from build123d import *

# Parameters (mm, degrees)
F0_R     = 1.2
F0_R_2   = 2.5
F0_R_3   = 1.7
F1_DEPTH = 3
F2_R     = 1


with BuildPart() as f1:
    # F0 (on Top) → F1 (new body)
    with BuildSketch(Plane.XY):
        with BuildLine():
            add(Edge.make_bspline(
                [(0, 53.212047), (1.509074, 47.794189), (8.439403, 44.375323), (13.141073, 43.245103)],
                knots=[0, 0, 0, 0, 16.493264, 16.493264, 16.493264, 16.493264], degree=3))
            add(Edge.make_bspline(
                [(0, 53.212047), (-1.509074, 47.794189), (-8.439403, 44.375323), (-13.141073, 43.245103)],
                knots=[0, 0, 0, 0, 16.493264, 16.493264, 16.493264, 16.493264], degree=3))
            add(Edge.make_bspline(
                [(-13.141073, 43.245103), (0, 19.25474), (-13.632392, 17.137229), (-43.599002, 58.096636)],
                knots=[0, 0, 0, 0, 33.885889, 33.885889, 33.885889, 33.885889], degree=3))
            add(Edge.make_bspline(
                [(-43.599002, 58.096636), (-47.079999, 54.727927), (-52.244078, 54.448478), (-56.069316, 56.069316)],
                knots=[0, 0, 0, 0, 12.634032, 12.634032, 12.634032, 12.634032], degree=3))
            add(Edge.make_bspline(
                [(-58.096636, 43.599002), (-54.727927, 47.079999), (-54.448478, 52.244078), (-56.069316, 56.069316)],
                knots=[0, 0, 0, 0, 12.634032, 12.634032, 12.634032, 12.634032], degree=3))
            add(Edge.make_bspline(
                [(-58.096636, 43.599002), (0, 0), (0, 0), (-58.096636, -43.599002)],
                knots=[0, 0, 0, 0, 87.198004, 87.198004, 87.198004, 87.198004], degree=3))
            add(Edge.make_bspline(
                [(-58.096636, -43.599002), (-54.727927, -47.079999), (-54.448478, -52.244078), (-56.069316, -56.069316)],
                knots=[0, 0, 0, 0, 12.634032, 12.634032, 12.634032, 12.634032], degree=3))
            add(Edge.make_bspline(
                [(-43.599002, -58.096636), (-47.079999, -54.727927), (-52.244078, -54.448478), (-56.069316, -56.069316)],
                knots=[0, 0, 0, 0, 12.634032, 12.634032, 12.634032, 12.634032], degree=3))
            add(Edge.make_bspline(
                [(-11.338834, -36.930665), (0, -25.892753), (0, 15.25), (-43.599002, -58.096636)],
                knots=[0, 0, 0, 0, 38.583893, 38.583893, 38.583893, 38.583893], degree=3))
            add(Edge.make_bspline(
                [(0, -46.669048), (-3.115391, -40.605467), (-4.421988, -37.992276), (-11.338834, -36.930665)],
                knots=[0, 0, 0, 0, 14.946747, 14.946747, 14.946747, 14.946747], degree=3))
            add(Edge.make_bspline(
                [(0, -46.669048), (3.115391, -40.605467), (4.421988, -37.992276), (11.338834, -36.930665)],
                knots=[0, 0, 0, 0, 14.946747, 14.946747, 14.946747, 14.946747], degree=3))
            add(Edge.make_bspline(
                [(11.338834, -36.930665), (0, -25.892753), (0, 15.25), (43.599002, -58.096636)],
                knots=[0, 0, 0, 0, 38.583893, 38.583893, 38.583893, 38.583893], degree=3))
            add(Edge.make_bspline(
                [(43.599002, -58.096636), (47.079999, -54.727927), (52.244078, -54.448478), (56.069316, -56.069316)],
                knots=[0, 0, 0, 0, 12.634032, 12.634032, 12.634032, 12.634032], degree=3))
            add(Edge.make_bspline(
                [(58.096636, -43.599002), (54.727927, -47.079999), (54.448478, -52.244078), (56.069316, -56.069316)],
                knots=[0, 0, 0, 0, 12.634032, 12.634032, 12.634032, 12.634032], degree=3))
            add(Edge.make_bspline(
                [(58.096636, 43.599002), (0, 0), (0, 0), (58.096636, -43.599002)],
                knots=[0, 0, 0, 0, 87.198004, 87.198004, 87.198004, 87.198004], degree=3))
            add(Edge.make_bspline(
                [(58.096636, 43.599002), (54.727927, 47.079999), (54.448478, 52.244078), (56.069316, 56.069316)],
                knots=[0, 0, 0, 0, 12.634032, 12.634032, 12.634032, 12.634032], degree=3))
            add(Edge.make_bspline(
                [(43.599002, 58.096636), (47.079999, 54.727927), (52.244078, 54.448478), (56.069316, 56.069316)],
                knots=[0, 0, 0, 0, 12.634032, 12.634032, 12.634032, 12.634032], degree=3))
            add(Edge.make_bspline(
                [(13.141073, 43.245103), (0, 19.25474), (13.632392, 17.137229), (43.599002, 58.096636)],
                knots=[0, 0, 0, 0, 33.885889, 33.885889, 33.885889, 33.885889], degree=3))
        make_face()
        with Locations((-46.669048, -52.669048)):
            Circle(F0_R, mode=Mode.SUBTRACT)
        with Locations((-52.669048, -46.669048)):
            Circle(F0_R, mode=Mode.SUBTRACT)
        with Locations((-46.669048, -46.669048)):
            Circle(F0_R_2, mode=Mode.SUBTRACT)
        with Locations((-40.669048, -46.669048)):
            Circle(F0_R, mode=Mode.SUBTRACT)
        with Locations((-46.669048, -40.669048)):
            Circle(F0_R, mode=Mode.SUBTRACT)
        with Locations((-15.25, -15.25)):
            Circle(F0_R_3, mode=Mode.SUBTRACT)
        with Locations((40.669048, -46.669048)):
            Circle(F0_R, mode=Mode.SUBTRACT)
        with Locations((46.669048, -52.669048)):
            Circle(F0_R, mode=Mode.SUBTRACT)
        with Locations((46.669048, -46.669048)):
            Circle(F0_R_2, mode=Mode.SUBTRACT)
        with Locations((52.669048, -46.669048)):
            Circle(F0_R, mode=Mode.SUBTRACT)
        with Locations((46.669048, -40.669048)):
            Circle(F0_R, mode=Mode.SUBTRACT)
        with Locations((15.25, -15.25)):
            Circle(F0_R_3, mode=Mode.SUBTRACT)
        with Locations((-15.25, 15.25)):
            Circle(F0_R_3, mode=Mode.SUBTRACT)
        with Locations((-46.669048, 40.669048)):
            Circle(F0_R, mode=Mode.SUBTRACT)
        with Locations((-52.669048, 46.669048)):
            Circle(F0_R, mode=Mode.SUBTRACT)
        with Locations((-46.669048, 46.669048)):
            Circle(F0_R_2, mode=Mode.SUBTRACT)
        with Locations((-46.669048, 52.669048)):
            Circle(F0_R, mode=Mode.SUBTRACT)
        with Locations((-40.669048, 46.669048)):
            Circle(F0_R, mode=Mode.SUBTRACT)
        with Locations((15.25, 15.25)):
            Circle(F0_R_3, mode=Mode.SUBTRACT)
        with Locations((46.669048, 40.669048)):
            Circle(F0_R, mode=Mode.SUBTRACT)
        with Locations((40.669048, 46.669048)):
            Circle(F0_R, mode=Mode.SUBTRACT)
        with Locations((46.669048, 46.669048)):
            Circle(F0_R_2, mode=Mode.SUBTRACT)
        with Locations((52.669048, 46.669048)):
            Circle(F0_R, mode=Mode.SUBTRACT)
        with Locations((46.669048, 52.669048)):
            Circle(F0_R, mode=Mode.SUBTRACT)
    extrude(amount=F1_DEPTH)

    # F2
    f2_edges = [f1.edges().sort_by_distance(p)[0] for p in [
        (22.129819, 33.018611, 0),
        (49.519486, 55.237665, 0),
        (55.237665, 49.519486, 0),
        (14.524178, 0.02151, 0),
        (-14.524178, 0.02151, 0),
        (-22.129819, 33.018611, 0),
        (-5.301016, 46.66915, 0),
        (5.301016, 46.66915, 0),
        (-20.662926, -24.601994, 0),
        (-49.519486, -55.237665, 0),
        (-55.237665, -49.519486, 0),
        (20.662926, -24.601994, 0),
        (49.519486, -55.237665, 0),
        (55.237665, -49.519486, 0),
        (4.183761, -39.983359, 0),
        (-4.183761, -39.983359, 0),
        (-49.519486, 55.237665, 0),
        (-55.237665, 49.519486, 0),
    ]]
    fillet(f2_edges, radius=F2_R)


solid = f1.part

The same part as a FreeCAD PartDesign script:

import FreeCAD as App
import Part
import Sketcher

V = App.Vector


def edges_at(feature, points):
    """Names of the edges that pass closest to the given points."""
    edges = feature.Shape.Edges
    near = lambda p: min(range(len(edges)), key=lambda i: edges[i].distToShape(Part.Vertex(*p))[0])
    return sorted({f"Edge{near(p) + 1}" for p in points})

doc = App.newDocument("Part")
params = doc.addObject("Spreadsheet::Sheet", "Params")
for row, (alias, value) in enumerate([
    ("sketch1_diameter", "5 mm"),
    ("sketch1_diameter2", "2.4 mm"),
    ("sketch1_diameter3", "3.4 mm"),
    ("pad1_length", "3 mm"),
    ("fillet_radius", "1 mm"),
], start=1):
    params.set(f"A{row}", alias)
    params.set(f"B{row}", "=" + value)
    params.setAlias(f"B{row}", alias)

body = doc.addObject("PartDesign::Body", "Body")

sketch1 = body.newObject("Sketcher::SketchObject", "Sketch")
sketch1.AttachmentSupport = (doc.getObject("XY_Plane"), [""])
sketch1.MapMode = "FlatFace"
sketch1.addGeometry([
    Part.BSplineCurve([V(0, 53.212047, 0), V(1.509074, 47.794189, 0), V(8.439403, 44.375323, 0), V(13.141073, 43.245103, 0)], [4, 4], [0, 16.493264], False, 3, [1, 1, 1, 1], False),
    Part.BSplineCurve([V(0, 53.212047, 0), V(-1.509074, 47.794189, 0), V(-8.439403, 44.375323, 0), V(-13.141073, 43.245103, 0)], [4, 4], [0, 16.493264], False, 3, [1, 1, 1, 1], False),
    Part.BSplineCurve([V(-13.141073, 43.245103, 0), V(0, 19.25474, 0), V(-13.632392, 17.137229, 0), V(-43.599002, 58.096636, 0)], [4, 4], [0, 33.885889], False, 3, [1, 1, 1, 1], False),
    Part.BSplineCurve([V(-43.599002, 58.096636, 0), V(-47.079999, 54.727927, 0), V(-52.244078, 54.448478, 0), V(-56.069316, 56.069316, 0)], [4, 4], [0, 12.634032], False, 3, [1, 1, 1, 1], False),
    Part.BSplineCurve([V(-58.096636, 43.599002, 0), V(-54.727927, 47.079999, 0), V(-54.448478, 52.244078, 0), V(-56.069316, 56.069316, 0)], [4, 4], [0, 12.634032], False, 3, [1, 1, 1, 1], False),
    Part.BSplineCurve([V(-58.096636, 43.599002, 0), V(0, 0, 0), V(0, 0, 0), V(-58.096636, -43.599002, 0)], [4, 4], [0, 87.198004], False, 3, [1, 1, 1, 1], False),
    Part.BSplineCurve([V(-58.096636, -43.599002, 0), V(-54.727927, -47.079999, 0), V(-54.448478, -52.244078, 0), V(-56.069316, -56.069316, 0)], [4, 4], [0, 12.634032], False, 3, [1, 1, 1, 1], False),
    Part.BSplineCurve([V(-43.599002, -58.096636, 0), V(-47.079999, -54.727927, 0), V(-52.244078, -54.448478, 0), V(-56.069316, -56.069316, 0)], [4, 4], [0, 12.634032], False, 3, [1, 1, 1, 1], False),
    Part.BSplineCurve([V(-11.338834, -36.930665, 0), V(0, -25.892753, 0), V(0, 15.25, 0), V(-43.599002, -58.096636, 0)], [4, 4], [0, 38.583893], False, 3, [1, 1, 1, 1], False),
    Part.BSplineCurve([V(0, -46.669048, 0), V(-3.115391, -40.605467, 0), V(-4.421988, -37.992276, 0), V(-11.338834, -36.930665, 0)], [4, 4], [0, 14.946747], False, 3, [1, 1, 1, 1], False),
    Part.BSplineCurve([V(0, -46.669048, 0), V(3.115391, -40.605467, 0), V(4.421988, -37.992276, 0), V(11.338834, -36.930665, 0)], [4, 4], [0, 14.946747], False, 3, [1, 1, 1, 1], False),
    Part.BSplineCurve([V(11.338834, -36.930665, 0), V(0, -25.892753, 0), V(0, 15.25, 0), V(43.599002, -58.096636, 0)], [4, 4], [0, 38.583893], False, 3, [1, 1, 1, 1], False),
    Part.BSplineCurve([V(43.599002, -58.096636, 0), V(47.079999, -54.727927, 0), V(52.244078, -54.448478, 0), V(56.069316, -56.069316, 0)], [4, 4], [0, 12.634032], False, 3, [1, 1, 1, 1], False),
    Part.BSplineCurve([V(58.096636, -43.599002, 0), V(54.727927, -47.079999, 0), V(54.448478, -52.244078, 0), V(56.069316, -56.069316, 0)], [4, 4], [0, 12.634032], False, 3, [1, 1, 1, 1], False),
    Part.BSplineCurve([V(58.096636, 43.599002, 0), V(0, 0, 0), V(0, 0, 0), V(58.096636, -43.599002, 0)], [4, 4], [0, 87.198004], False, 3, [1, 1, 1, 1], False),
    Part.BSplineCurve([V(58.096636, 43.599002, 0), V(54.727927, 47.079999, 0), V(54.448478, 52.244078, 0), V(56.069316, 56.069316, 0)], [4, 4], [0, 12.634032], False, 3, [1, 1, 1, 1], False),
    Part.BSplineCurve([V(43.599002, 58.096636, 0), V(47.079999, 54.727927, 0), V(52.244078, 54.448478, 0), V(56.069316, 56.069316, 0)], [4, 4], [0, 12.634032], False, 3, [1, 1, 1, 1], False),
    Part.BSplineCurve([V(13.141073, 43.245103, 0), V(0, 19.25474, 0), V(13.632392, 17.137229, 0), V(43.599002, 58.096636, 0)], [4, 4], [0, 33.885889], False, 3, [1, 1, 1, 1], False),
    Part.Circle(V(46.669048, -52.669048, 0), V(0, 0, 1), 1.2),
    Part.Circle(V(52.669048, -46.669048, 0), V(0, 0, 1), 1.2),
    Part.Circle(V(46.669048, -46.669048, 0), V(0, 0, 1), 2.5),
    Part.Circle(V(40.669048, -46.669048, 0), V(0, 0, 1), 1.2),
    Part.Circle(V(46.669048, -40.669048, 0), V(0, 0, 1), 1.2),
    Part.Circle(V(15.25, -15.25, 0), V(0, 0, 1), 1.7),
    Part.Circle(V(-46.669048, -52.669048, 0), V(0, 0, 1), 1.2),
    Part.Circle(V(-40.669048, -46.669048, 0), V(0, 0, 1), 1.2),
    Part.Circle(V(-46.669048, -46.669048, 0), V(0, 0, 1), 2.5),
    Part.Circle(V(-46.669048, -40.669048, 0), V(0, 0, 1), 1.2),
    Part.Circle(V(-52.669048, -46.669048, 0), V(0, 0, 1), 1.2),
    Part.Circle(V(-15.25, -15.25, 0), V(0, 0, 1), 1.7),
    Part.Circle(V(15.25, 15.25, 0), V(0, 0, 1), 1.7),
    Part.Circle(V(52.669048, 46.669048, 0), V(0, 0, 1), 1.2),
    Part.Circle(V(46.669048, 40.669048, 0), V(0, 0, 1), 1.2),
    Part.Circle(V(46.669048, 46.669048, 0), V(0, 0, 1), 2.5),
    Part.Circle(V(40.669048, 46.669048, 0), V(0, 0, 1), 1.2),
    Part.Circle(V(46.669048, 52.669048, 0), V(0, 0, 1), 1.2),
    Part.Circle(V(-15.25, 15.25, 0), V(0, 0, 1), 1.7),
    Part.Circle(V(-46.669048, 40.669048, 0), V(0, 0, 1), 1.2),
    Part.Circle(V(-40.669048, 46.669048, 0), V(0, 0, 1), 1.2),
    Part.Circle(V(-46.669048, 46.669048, 0), V(0, 0, 1), 2.5),
    Part.Circle(V(-52.669048, 46.669048, 0), V(0, 0, 1), 1.2),
    Part.Circle(V(-46.669048, 52.669048, 0), V(0, 0, 1), 1.2),
], False)
sketch1.addConstraint([
    Sketcher.Constraint("Block", 0),
    Sketcher.Constraint("Block", 1),
    Sketcher.Constraint("Block", 2),
    Sketcher.Constraint("Block", 3),
    Sketcher.Constraint("Block", 4),
    Sketcher.Constraint("Block", 5),
    Sketcher.Constraint("Block", 6),
    Sketcher.Constraint("Block", 7),
    Sketcher.Constraint("Block", 8),
    Sketcher.Constraint("Block", 9),
    Sketcher.Constraint("Block", 10),
    Sketcher.Constraint("Block", 11),
    Sketcher.Constraint("Block", 12),
    Sketcher.Constraint("Block", 13),
    Sketcher.Constraint("Block", 14),
    Sketcher.Constraint("Block", 15),
    Sketcher.Constraint("Block", 16),
    Sketcher.Constraint("Block", 17),
    Sketcher.Constraint("Equal", 18, 19),
    Sketcher.Constraint("Equal", 19, 21),
    Sketcher.Constraint("Equal", 21, 22),
    Sketcher.Constraint("Equal", 22, 24),
    Sketcher.Constraint("Equal", 24, 25),
    Sketcher.Constraint("Equal", 20, 26),
    Sketcher.Constraint("Equal", 25, 27),
    Sketcher.Constraint("Equal", 27, 28),
    Sketcher.Constraint("Equal", 23, 29),
    Sketcher.Constraint("Equal", 29, 30),
    Sketcher.Constraint("Equal", 28, 31),
    Sketcher.Constraint("Equal", 31, 32),
    Sketcher.Constraint("Equal", 26, 33),
    Sketcher.Constraint("Equal", 32, 34),
    Sketcher.Constraint("Equal", 34, 35),
    Sketcher.Constraint("Equal", 30, 36),
    Sketcher.Constraint("Equal", 35, 37),
    Sketcher.Constraint("Equal", 37, 38),
    Sketcher.Constraint("Equal", 33, 39),
    Sketcher.Constraint("Equal", 38, 40),
    Sketcher.Constraint("Equal", 40, 41),
    Sketcher.Constraint("Symmetric", 29, 3, 30, 3, -1, 1),
    Sketcher.Constraint("Symmetric", 28, 3, 31, 3, -1, 1),
    Sketcher.Constraint("Symmetric", 27, 3, 32, 3, -1, 1),
    Sketcher.Constraint("Symmetric", 26, 3, 33, 3, -1, 1),
    Sketcher.Constraint("Symmetric", 25, 3, 34, 3, -1, 1),
    Sketcher.Constraint("Symmetric", 24, 3, 35, 3, -1, 1),
    Sketcher.Constraint("Symmetric", 23, 3, 36, 3, -1, 1),
    Sketcher.Constraint("Symmetric", 22, 3, 37, 3, -1, 1),
    Sketcher.Constraint("Symmetric", 21, 3, 38, 3, -1, 1),
    Sketcher.Constraint("Symmetric", 20, 3, 39, 3, -1, 1),
    Sketcher.Constraint("Symmetric", 19, 3, 40, 3, -1, 1),
    Sketcher.Constraint("Symmetric", 18, 3, 41, 3, -1, 1),
    Sketcher.Constraint("Symmetric", 18, 3, 24, 3, -2),
    Sketcher.Constraint("Symmetric", 21, 3, 25, 3, -2),
    Sketcher.Constraint("Symmetric", 20, 3, 26, 3, -2),
    Sketcher.Constraint("Symmetric", 22, 3, 27, 3, -2),
    Sketcher.Constraint("Symmetric", 19, 3, 28, 3, -2),
    Sketcher.Constraint("Symmetric", 23, 3, 29, 3, -2),
    Sketcher.Constraint("Horizontal", 19, 3, 20, 3),
    Sketcher.Constraint("Horizontal", 20, 3, 21, 3),
    Sketcher.Constraint("Vertical", 18, 3, 20, 3),
    Sketcher.Constraint("Vertical", 20, 3, 22, 3),
    Sketcher.Constraint("Diameter", 20, 5.0),
    Sketcher.Constraint("Diameter", 18, 2.4),
    Sketcher.Constraint("Diameter", 23, 3.4),
    Sketcher.Constraint("DistanceX", 18, 3, 19, 3, 6.0),
    Sketcher.Constraint("DistanceY", 18, 3, 19, 3, 6.0),
    Sketcher.Constraint("DistanceX", 21, 3, 20, 3, 6.0),
    Sketcher.Constraint("DistanceY", 20, 3, 22, 3, 6.0),
    Sketcher.Constraint("DistanceX", 29, 3, 23, 3, 30.5),
    Sketcher.Constraint("DistanceY", 23, 3, 30, 3, 30.5),
    Sketcher.Constraint("DistanceX", 28, 3, 23, 3, 67.919048),
    Sketcher.Constraint("DistanceY", 18, 3, -1, 1, 52.669048),
])
sketch1.setExpression("Constraints[61]", "Params.sketch1_diameter")
sketch1.setExpression("Constraints[62]", "Params.sketch1_diameter2")
sketch1.setExpression("Constraints[63]", "Params.sketch1_diameter3")
pad1 = body.newObject("PartDesign::Pad", "Pad")
pad1.Profile = sketch1
pad1.setExpression("Length", "Params.pad1_length")
doc.recompute()

fillet = body.newObject("PartDesign::Fillet", "Fillet")
fillet.Base = (pad1, edges_at(pad1, [
    (22.13, 33.019, 0),
    (49.519, 55.238, 0),
    (55.238, 49.519, 0),
    (14.524, 0.022, 0),
    (-14.524, 0.022, 0),
    (-22.13, 33.019, 0),
    (-5.301, 46.669, 0),
    (5.301, 46.669, 0),
    (-20.663, -24.602, 0),
    (-49.519, -55.238, 0),
    (-55.238, -49.519, 0),
    (20.663, -24.602, 0),
    (49.519, -55.238, 0),
    (55.238, -49.519, 0),
    (4.184, -39.983, 0),
    (-4.184, -39.983, 0),
    (-49.519, 55.238, 0),
    (-55.238, 49.519, 0),
]))
fillet.setExpression("Radius", "Params.fillet_radius")

doc.recompute()
